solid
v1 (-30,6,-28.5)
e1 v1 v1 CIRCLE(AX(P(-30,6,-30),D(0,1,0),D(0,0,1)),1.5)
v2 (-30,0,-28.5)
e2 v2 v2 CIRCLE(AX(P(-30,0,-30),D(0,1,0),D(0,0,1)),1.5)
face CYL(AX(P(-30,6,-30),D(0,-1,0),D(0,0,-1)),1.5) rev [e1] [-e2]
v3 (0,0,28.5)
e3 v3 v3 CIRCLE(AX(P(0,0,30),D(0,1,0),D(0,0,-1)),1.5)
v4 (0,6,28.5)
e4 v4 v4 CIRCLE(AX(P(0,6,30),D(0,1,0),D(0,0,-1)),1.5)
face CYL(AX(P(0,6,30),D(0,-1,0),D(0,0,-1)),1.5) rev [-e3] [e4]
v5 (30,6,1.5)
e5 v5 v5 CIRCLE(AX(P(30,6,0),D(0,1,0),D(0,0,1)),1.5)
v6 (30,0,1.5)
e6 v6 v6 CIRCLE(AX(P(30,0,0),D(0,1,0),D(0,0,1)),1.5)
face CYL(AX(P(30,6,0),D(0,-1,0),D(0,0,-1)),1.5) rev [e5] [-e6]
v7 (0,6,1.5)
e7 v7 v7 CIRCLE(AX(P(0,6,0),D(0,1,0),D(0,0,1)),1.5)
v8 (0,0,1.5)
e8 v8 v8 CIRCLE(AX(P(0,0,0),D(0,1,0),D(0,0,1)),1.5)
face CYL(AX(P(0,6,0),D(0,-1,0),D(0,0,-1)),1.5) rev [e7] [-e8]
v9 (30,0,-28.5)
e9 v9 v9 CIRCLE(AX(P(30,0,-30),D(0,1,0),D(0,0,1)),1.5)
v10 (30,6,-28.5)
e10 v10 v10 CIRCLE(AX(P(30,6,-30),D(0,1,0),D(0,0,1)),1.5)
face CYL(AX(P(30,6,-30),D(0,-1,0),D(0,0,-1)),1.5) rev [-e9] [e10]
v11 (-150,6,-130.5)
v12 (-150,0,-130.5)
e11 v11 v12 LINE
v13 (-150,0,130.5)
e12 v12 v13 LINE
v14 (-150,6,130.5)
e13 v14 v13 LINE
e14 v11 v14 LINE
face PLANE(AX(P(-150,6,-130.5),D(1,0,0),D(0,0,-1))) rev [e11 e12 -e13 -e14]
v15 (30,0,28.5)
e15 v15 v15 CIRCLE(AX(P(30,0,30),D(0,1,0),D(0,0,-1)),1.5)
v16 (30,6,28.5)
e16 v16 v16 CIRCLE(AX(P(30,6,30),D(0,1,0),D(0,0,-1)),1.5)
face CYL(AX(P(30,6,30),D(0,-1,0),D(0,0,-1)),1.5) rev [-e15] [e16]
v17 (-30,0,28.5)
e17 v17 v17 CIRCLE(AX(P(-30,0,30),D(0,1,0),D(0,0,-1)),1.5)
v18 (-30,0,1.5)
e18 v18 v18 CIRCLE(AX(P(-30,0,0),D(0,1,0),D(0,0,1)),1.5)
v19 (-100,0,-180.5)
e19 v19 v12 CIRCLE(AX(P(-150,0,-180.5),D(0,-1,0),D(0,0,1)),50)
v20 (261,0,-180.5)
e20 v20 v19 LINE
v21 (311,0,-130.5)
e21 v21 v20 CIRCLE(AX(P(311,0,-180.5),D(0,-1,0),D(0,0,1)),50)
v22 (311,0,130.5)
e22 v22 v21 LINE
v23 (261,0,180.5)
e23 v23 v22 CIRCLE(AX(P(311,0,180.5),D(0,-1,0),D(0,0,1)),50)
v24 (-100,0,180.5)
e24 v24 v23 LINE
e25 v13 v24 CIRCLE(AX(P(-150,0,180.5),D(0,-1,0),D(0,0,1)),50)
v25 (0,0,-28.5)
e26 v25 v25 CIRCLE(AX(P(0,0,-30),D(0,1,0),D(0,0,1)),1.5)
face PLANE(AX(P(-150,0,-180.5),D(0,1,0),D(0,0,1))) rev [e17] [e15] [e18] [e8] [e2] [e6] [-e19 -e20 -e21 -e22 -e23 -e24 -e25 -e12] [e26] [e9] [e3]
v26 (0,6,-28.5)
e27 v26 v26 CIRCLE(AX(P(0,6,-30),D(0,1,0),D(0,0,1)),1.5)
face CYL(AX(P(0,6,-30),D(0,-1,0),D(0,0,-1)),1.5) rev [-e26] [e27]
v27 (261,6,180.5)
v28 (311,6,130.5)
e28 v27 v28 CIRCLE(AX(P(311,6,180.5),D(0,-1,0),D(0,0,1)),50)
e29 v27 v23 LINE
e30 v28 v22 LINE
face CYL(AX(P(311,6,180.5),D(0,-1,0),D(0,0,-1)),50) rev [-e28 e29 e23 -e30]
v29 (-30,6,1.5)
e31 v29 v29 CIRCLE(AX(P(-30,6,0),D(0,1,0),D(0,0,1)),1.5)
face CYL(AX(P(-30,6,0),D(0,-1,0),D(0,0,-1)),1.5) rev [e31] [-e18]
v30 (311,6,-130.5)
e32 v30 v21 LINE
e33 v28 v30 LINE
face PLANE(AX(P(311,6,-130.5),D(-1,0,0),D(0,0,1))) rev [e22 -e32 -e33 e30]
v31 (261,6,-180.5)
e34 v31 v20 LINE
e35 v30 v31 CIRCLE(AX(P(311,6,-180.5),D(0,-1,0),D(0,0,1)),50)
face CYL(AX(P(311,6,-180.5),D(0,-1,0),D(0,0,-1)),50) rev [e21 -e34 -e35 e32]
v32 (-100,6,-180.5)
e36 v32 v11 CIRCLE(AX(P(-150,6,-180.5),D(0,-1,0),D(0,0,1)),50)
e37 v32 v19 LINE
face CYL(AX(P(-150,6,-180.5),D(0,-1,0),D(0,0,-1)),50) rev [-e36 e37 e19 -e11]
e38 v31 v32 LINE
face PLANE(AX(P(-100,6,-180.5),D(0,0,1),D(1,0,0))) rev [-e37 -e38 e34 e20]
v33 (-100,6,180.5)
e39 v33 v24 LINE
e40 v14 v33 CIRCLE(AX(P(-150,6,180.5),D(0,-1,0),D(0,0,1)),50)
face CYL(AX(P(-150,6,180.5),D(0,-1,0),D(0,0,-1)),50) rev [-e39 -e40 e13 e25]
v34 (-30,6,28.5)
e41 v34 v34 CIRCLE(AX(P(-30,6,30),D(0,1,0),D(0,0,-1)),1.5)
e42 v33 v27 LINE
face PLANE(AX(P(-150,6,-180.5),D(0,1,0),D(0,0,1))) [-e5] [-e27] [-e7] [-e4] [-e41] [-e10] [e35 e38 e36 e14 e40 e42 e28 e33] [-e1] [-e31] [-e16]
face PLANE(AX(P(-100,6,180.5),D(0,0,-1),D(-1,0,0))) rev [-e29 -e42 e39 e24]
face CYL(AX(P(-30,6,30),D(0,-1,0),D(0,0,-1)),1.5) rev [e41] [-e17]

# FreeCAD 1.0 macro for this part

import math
import FreeCAD as App
import Part
import Sketcher

doc = App.newDocument("Part")
params = doc.addObject("Spreadsheet::Sheet", "Params")
for row, (alias, value) in enumerate([
    ("sketch1_diameter", "3 mm"),
    ("sketch1_radius", "50 mm"),
    ("sketch1_width", "361 mm"),
    ("sketch1_height", "261 mm"),
    ("pad1_length", "6 mm"),
], start=1):
    params.set(f"A{row}", alias)
    params.set(f"B{row}", "=" + value)
    params.setAlias(f"B{row}", alias)

body = doc.addObject("PartDesign::Body", "Body")

sketch1 = body.newObject("Sketcher::SketchObject", "Sketch")
sketch1.AttachmentSupport = (doc.getObject("XZ_Plane"), [""])
sketch1.MapMode = "FlatFace"
sketch1.addGeometry(Part.LineSegment(App.Vector(261, -180.5, 0), App.Vector(-100, -180.5, 0)), False)
sketch1.addGeometry(Part.ArcOfCircle(Part.Circle(App.Vector(-150, -180.5, 0), App.Vector(0, 0, 1), 50), math.radians(0), math.radians(90)), False)
sketch1.addGeometry(Part.LineSegment(App.Vector(-150, -130.5, 0), App.Vector(-150, 130.5, 0)), False)
sketch1.addGeometry(Part.ArcOfCircle(Part.Circle(App.Vector(-150, 180.5, 0), App.Vector(0, 0, 1), 50), math.radians(-90), math.radians(0)), False)
sketch1.addGeometry(Part.LineSegment(App.Vector(-100, 180.5, 0), App.Vector(261, 180.5, 0)), False)
sketch1.addGeometry(Part.ArcOfCircle(Part.Circle(App.Vector(311, 180.5, 0), App.Vector(0, 0, 1), 50), math.radians(-180), math.radians(-90)), False)
sketch1.addGeometry(Part.LineSegment(App.Vector(311, 130.5, 0), App.Vector(311, -130.5, 0)), False)
sketch1.addGeometry(Part.ArcOfCircle(Part.Circle(App.Vector(311, -180.5, 0), App.Vector(0, 0, 1), 50), math.radians(90), math.radians(180)), False)
sketch1.addGeometry(Part.Circle(App.Vector(30, 30, 0), App.Vector(0, 0, 1), 1.5), False)
sketch1.addGeometry(Part.Circle(App.Vector(0, 30, 0), App.Vector(0, 0, 1), 1.5), False)
sketch1.addGeometry(Part.Circle(App.Vector(-30, 30, 0), App.Vector(0, 0, 1), 1.5), False)
sketch1.addGeometry(Part.Circle(App.Vector(30, 0, 0), App.Vector(0, 0, 1), 1.5), False)
sketch1.addGeometry(Part.Circle(App.Vector(30, -30, 0), App.Vector(0, 0, 1), 1.5), False)
sketch1.addGeometry(Part.Circle(App.Vector(0, 0, 0), App.Vector(0, 0, 1), 1.5), False)
sketch1.addGeometry(Part.Circle(App.Vector(-30, 0, 0), App.Vector(0, 0, 1), 1.5), False)
sketch1.addGeometry(Part.Circle(App.Vector(0, -30, 0), App.Vector(0, 0, 1), 1.5), False)
sketch1.addGeometry(Part.Circle(App.Vector(-30, -30, 0), App.Vector(0, 0, 1), 1.5), False)
sketch1.addConstraint(Sketcher.Constraint("Coincident", 0, 2, 1, 1))
sketch1.addConstraint(Sketcher.Constraint("Coincident", 1, 2, 2, 1))
sketch1.addConstraint(Sketcher.Constraint("Coincident", 2, 2, 3, 1))
sketch1.addConstraint(Sketcher.Constraint("Coincident", 3, 2, 4, 1))
sketch1.addConstraint(Sketcher.Constraint("Coincident", 4, 2, 5, 1))
sketch1.addConstraint(Sketcher.Constraint("Coincident", 5, 2, 6, 1))
sketch1.addConstraint(Sketcher.Constraint("Coincident", 6, 2, 7, 1))
sketch1.addConstraint(Sketcher.Constraint("Coincident", 7, 2, 0, 1))
sketch1.addConstraint(Sketcher.Constraint("Horizontal", 0))
sketch1.addConstraint(Sketcher.Constraint("Vertical", 2))
sketch1.addConstraint(Sketcher.Constraint("Horizontal", 4))
sketch1.addConstraint(Sketcher.Constraint("Vertical", 6))
sketch1.addConstraint(Sketcher.Constraint("Coincident", 13, 3, -1, 1))
sketch1.addConstraint(Sketcher.Constraint("Equal", 1, 3))
sketch1.addConstraint(Sketcher.Constraint("Equal", 3, 5))
sketch1.addConstraint(Sketcher.Constraint("Equal", 5, 7))
sketch1.addConstraint(Sketcher.Constraint("Equal", 8, 9))
sketch1.addConstraint(Sketcher.Constraint("Equal", 9, 10))
sketch1.addConstraint(Sketcher.Constraint("Equal", 10, 11))
sketch1.addConstraint(Sketcher.Constraint("Equal", 11, 12))
sketch1.addConstraint(Sketcher.Constraint("Equal", 12, 13))
sketch1.addConstraint(Sketcher.Constraint("Equal", 13, 14))
sketch1.addConstraint(Sketcher.Constraint("Equal", 14, 15))
sketch1.addConstraint(Sketcher.Constraint("Equal", 15, 16))
sketch1.addConstraint(Sketcher.Constraint("Symmetric", 10, 3, 12, 3, -1, 1))
sketch1.addConstraint(Sketcher.Constraint("Symmetric", 11, 3, 14, 3, -1, 1))
sketch1.addConstraint(Sketcher.Constraint("Symmetric", 9, 3, 15, 3, -1, 1))
sketch1.addConstraint(Sketcher.Constraint("Symmetric", 8, 3, 16, 3, -1, 1))
sketch1.addConstraint(Sketcher.Constraint("Symmetric", 8, 3, 10, 3, -2))
sketch1.addConstraint(Sketcher.Constraint("Symmetric", 1, 3, 3, 3, -1))
sketch1.addConstraint(Sketcher.Constraint("Symmetric", 5, 3, 7, 3, -1))
sketch1.addConstraint(Sketcher.Constraint("PointOnObject", 9, 3, -2))
sketch1.addConstraint(Sketcher.Constraint("PointOnObject", 11, 3, -1))
sketch1.addConstraint(Sketcher.Constraint("Horizontal", 3, 3, 5, 3))
sketch1.addConstraint(Sketcher.Constraint("Horizontal", 8, 3, 9, 3))
sketch1.addConstraint(Sketcher.Constraint("Horizontal", 7, 3, 0, 2))
sketch1.addConstraint(Sketcher.Constraint("Horizontal", 5, 3, 3, 2))
sketch1.addConstraint(Sketcher.Constraint("Vertical", 8, 3, 11, 3))
sketch1.addConstraint(Sketcher.Constraint("Vertical", 3, 3, 1, 2))
sketch1.addConstraint(Sketcher.Constraint("Vertical", 7, 3, 5, 2))
sketch1.addConstraint(Sketcher.Constraint("Diameter", 8, 3.0))
sketch1.addConstraint(Sketcher.Constraint("Radius", 1, 50.0))
sketch1.addConstraint(Sketcher.Constraint("DistanceX", 0, 2, 0, 1, 361.0))
sketch1.addConstraint(Sketcher.Constraint("DistanceY", 2, 1, 2, 2, 261.0))
sketch1.addConstraint(Sketcher.Constraint("DistanceX", 1, 3, -1, 1, 150.0))
sketch1.addConstraint(Sketcher.Constraint("DistanceX", -1, 1, 8, 3, 30.0))
sketch1.addConstraint(Sketcher.Constraint("DistanceY", -1, 1, 8, 3, 30.0))
sketch1.setExpression("Constraints[40]", "Params.sketch1_diameter")
sketch1.setExpression("Constraints[41]", "Params.sketch1_radius")
sketch1.setExpression("Constraints[42]", "Params.sketch1_width")
sketch1.setExpression("Constraints[43]", "Params.sketch1_height")
pad1 = body.newObject("PartDesign::Pad", "Pad")
pad1.Profile = sketch1
pad1.setExpression("Length", "Params.pad1_length")
pad1.Reversed = True

doc.recompute()
